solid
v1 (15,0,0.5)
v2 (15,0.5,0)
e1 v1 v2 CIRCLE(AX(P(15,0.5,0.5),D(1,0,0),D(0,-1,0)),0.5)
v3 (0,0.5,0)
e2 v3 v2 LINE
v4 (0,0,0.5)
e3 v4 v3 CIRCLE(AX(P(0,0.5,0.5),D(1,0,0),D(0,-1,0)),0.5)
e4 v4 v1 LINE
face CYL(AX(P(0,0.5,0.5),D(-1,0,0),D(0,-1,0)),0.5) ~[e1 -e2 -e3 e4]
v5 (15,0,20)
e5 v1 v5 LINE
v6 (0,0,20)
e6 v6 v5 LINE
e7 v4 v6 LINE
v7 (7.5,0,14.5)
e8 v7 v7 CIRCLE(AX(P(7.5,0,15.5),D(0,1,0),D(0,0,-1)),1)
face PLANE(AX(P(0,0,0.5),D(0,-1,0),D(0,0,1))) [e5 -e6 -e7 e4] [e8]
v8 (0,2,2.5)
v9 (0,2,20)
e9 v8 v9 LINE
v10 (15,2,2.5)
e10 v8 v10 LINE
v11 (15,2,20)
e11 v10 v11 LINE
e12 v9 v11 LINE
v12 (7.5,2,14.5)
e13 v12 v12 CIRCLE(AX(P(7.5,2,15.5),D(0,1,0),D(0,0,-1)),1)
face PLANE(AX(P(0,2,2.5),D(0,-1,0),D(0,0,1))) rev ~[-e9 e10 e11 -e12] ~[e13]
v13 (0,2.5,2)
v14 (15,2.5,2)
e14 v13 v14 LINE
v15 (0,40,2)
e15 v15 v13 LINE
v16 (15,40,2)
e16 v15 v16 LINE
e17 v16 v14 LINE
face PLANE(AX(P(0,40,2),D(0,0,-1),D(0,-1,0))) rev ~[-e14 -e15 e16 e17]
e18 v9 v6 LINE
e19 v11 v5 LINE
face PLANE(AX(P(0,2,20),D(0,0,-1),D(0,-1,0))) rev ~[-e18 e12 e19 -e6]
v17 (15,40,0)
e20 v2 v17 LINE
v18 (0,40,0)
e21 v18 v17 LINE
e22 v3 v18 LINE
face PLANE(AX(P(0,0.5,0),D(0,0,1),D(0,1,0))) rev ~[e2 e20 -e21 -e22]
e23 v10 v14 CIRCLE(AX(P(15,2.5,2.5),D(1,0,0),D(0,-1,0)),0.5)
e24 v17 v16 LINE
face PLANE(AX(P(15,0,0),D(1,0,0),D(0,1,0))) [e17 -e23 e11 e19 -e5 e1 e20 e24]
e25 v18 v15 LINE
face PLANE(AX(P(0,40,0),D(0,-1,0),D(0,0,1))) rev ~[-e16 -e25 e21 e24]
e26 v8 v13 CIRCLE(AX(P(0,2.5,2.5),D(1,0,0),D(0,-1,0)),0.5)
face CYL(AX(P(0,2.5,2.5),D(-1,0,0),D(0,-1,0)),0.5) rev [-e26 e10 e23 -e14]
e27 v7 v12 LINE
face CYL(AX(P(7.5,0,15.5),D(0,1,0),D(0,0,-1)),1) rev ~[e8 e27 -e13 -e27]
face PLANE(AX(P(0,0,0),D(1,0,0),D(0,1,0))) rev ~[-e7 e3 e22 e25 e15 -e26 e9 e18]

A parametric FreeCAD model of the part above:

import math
import FreeCAD as App
import Part
import Sketcher
Q = App.Units.Quantity

doc = App.newDocument("Part")
body = doc.addObject("PartDesign::Body", "Body")

# Sketch on YZ plane
sketch1 = doc.addObject("Sketcher::SketchObject", "Sketch")
body.addObject(sketch1)
sketch1.AttachmentSupport = (doc.YZ_Plane, [""])
sketch1.MapMode = "FlatFace"
sketch1.addGeometry(Part.ArcOfCircle(Part.Circle(App.Vector(0.5, 0.5, 0), App.Vector(0, 0, 1), 0.5), math.radians(180), math.radians(270)), False)
sketch1.addGeometry(Part.LineSegment(App.Vector(0.5, 0, 0), App.Vector(40, 0, 0)), False)
sketch1.addGeometry(Part.LineSegment(App.Vector(40, 0, 0), App.Vector(40, 2, 0)), False)
sketch1.addGeometry(Part.LineSegment(App.Vector(40, 2, 0), App.Vector(2.5, 2, 0)), False)
sketch1.addGeometry(Part.ArcOfCircle(Part.Circle(App.Vector(2.5, 2.5, 0), App.Vector(0, 0, 1), 0.5), math.radians(180), math.radians(270)), False)
sketch1.addGeometry(Part.LineSegment(App.Vector(2, 2.5, 0), App.Vector(2, 20, 0)), False)
sketch1.addGeometry(Part.LineSegment(App.Vector(2, 20, 0), App.Vector(0, 20, 0)), False)
sketch1.addGeometry(Part.LineSegment(App.Vector(0, 20, 0), App.Vector(0, 0.5, 0)), False)
sketch1.addConstraint(Sketcher.Constraint("Tangent", 0, 2, 1, 1))
sketch1.addConstraint(Sketcher.Constraint("Coincident", 1, 2, 2, 1))
sketch1.addConstraint(Sketcher.Constraint("Coincident", 2, 2, 3, 1))
sketch1.addConstraint(Sketcher.Constraint("Tangent", 3, 2, 4, 2))
sketch1.addConstraint(Sketcher.Constraint("Tangent", 4, 1, 5, 1))
sketch1.addConstraint(Sketcher.Constraint("Coincident", 5, 2, 6, 1))
sketch1.addConstraint(Sketcher.Constraint("Coincident", 6, 2, 7, 1))
sketch1.addConstraint(Sketcher.Constraint("Tangent", 7, 2, 0, 1))
sketch1.addConstraint(Sketcher.Constraint("Horizontal", 1))
sketch1.addConstraint(Sketcher.Constraint("Vertical", 2))
sketch1.addConstraint(Sketcher.Constraint("Horizontal", 3))
sketch1.addConstraint(Sketcher.Constraint("Vertical", 5))
sketch1.addConstraint(Sketcher.Constraint("Horizontal", 6))
sketch1.addConstraint(Sketcher.Constraint("Vertical", 7))
sketch1.addConstraint(Sketcher.Constraint("Equal", 0, 4))
sketch1.addConstraint(Sketcher.Constraint("PointOnObject", 0, 2, -1))
sketch1.addConstraint(Sketcher.Constraint("PointOnObject", 6, 2, -2))
sketch1.addConstraint(Sketcher.Constraint("Equal", 6, 2))
sketch1.addConstraint(Sketcher.Constraint("Radius", 0, Q("0.5 mm")))
sketch1.addConstraint(Sketcher.Constraint("DistanceX", 6, 2, 6, 1, Q("2 mm")))
sketch1.addConstraint(Sketcher.Constraint("DistanceX", -1, 1, 1, 2, Q("40 mm")))
sketch1.addConstraint(Sketcher.Constraint("DistanceY", -1, 1, 5, 2, Q("20 mm")))
pad1 = doc.addObject("PartDesign::Pad", "Pad")
body.addObject(pad1)
pad1.Profile = sketch1
pad1.Length = 15

# Sketch on XZ plane
sketch2 = doc.addObject("Sketcher::SketchObject", "Sketch001")
body.addObject(sketch2)
sketch2.AttachmentSupport = (doc.XZ_Plane, [""])
sketch2.MapMode = "FlatFace"
sketch2.addGeometry(Part.Circle(App.Vector(7.5, 15.5, 0), App.Vector(0, 0, 1), 1), False)
sketch2.addConstraint(Sketcher.Constraint("Diameter", 0, Q("2 mm")))
sketch2.addConstraint(Sketcher.Constraint("DistanceX", -1, 1, 0, 3, Q("7.5 mm")))
sketch2.addConstraint(Sketcher.Constraint("DistanceY", -1, 1, 0, 3, Q("15.5 mm")))
doc.recompute()
hole = doc.addObject("PartDesign::Hole", "Hole")
body.addObject(hole)
hole.Profile = sketch2
hole.ThreadType = "None"
hole.Diameter = 2
hole.DepthType = "ThroughAll"

doc.recompute()
